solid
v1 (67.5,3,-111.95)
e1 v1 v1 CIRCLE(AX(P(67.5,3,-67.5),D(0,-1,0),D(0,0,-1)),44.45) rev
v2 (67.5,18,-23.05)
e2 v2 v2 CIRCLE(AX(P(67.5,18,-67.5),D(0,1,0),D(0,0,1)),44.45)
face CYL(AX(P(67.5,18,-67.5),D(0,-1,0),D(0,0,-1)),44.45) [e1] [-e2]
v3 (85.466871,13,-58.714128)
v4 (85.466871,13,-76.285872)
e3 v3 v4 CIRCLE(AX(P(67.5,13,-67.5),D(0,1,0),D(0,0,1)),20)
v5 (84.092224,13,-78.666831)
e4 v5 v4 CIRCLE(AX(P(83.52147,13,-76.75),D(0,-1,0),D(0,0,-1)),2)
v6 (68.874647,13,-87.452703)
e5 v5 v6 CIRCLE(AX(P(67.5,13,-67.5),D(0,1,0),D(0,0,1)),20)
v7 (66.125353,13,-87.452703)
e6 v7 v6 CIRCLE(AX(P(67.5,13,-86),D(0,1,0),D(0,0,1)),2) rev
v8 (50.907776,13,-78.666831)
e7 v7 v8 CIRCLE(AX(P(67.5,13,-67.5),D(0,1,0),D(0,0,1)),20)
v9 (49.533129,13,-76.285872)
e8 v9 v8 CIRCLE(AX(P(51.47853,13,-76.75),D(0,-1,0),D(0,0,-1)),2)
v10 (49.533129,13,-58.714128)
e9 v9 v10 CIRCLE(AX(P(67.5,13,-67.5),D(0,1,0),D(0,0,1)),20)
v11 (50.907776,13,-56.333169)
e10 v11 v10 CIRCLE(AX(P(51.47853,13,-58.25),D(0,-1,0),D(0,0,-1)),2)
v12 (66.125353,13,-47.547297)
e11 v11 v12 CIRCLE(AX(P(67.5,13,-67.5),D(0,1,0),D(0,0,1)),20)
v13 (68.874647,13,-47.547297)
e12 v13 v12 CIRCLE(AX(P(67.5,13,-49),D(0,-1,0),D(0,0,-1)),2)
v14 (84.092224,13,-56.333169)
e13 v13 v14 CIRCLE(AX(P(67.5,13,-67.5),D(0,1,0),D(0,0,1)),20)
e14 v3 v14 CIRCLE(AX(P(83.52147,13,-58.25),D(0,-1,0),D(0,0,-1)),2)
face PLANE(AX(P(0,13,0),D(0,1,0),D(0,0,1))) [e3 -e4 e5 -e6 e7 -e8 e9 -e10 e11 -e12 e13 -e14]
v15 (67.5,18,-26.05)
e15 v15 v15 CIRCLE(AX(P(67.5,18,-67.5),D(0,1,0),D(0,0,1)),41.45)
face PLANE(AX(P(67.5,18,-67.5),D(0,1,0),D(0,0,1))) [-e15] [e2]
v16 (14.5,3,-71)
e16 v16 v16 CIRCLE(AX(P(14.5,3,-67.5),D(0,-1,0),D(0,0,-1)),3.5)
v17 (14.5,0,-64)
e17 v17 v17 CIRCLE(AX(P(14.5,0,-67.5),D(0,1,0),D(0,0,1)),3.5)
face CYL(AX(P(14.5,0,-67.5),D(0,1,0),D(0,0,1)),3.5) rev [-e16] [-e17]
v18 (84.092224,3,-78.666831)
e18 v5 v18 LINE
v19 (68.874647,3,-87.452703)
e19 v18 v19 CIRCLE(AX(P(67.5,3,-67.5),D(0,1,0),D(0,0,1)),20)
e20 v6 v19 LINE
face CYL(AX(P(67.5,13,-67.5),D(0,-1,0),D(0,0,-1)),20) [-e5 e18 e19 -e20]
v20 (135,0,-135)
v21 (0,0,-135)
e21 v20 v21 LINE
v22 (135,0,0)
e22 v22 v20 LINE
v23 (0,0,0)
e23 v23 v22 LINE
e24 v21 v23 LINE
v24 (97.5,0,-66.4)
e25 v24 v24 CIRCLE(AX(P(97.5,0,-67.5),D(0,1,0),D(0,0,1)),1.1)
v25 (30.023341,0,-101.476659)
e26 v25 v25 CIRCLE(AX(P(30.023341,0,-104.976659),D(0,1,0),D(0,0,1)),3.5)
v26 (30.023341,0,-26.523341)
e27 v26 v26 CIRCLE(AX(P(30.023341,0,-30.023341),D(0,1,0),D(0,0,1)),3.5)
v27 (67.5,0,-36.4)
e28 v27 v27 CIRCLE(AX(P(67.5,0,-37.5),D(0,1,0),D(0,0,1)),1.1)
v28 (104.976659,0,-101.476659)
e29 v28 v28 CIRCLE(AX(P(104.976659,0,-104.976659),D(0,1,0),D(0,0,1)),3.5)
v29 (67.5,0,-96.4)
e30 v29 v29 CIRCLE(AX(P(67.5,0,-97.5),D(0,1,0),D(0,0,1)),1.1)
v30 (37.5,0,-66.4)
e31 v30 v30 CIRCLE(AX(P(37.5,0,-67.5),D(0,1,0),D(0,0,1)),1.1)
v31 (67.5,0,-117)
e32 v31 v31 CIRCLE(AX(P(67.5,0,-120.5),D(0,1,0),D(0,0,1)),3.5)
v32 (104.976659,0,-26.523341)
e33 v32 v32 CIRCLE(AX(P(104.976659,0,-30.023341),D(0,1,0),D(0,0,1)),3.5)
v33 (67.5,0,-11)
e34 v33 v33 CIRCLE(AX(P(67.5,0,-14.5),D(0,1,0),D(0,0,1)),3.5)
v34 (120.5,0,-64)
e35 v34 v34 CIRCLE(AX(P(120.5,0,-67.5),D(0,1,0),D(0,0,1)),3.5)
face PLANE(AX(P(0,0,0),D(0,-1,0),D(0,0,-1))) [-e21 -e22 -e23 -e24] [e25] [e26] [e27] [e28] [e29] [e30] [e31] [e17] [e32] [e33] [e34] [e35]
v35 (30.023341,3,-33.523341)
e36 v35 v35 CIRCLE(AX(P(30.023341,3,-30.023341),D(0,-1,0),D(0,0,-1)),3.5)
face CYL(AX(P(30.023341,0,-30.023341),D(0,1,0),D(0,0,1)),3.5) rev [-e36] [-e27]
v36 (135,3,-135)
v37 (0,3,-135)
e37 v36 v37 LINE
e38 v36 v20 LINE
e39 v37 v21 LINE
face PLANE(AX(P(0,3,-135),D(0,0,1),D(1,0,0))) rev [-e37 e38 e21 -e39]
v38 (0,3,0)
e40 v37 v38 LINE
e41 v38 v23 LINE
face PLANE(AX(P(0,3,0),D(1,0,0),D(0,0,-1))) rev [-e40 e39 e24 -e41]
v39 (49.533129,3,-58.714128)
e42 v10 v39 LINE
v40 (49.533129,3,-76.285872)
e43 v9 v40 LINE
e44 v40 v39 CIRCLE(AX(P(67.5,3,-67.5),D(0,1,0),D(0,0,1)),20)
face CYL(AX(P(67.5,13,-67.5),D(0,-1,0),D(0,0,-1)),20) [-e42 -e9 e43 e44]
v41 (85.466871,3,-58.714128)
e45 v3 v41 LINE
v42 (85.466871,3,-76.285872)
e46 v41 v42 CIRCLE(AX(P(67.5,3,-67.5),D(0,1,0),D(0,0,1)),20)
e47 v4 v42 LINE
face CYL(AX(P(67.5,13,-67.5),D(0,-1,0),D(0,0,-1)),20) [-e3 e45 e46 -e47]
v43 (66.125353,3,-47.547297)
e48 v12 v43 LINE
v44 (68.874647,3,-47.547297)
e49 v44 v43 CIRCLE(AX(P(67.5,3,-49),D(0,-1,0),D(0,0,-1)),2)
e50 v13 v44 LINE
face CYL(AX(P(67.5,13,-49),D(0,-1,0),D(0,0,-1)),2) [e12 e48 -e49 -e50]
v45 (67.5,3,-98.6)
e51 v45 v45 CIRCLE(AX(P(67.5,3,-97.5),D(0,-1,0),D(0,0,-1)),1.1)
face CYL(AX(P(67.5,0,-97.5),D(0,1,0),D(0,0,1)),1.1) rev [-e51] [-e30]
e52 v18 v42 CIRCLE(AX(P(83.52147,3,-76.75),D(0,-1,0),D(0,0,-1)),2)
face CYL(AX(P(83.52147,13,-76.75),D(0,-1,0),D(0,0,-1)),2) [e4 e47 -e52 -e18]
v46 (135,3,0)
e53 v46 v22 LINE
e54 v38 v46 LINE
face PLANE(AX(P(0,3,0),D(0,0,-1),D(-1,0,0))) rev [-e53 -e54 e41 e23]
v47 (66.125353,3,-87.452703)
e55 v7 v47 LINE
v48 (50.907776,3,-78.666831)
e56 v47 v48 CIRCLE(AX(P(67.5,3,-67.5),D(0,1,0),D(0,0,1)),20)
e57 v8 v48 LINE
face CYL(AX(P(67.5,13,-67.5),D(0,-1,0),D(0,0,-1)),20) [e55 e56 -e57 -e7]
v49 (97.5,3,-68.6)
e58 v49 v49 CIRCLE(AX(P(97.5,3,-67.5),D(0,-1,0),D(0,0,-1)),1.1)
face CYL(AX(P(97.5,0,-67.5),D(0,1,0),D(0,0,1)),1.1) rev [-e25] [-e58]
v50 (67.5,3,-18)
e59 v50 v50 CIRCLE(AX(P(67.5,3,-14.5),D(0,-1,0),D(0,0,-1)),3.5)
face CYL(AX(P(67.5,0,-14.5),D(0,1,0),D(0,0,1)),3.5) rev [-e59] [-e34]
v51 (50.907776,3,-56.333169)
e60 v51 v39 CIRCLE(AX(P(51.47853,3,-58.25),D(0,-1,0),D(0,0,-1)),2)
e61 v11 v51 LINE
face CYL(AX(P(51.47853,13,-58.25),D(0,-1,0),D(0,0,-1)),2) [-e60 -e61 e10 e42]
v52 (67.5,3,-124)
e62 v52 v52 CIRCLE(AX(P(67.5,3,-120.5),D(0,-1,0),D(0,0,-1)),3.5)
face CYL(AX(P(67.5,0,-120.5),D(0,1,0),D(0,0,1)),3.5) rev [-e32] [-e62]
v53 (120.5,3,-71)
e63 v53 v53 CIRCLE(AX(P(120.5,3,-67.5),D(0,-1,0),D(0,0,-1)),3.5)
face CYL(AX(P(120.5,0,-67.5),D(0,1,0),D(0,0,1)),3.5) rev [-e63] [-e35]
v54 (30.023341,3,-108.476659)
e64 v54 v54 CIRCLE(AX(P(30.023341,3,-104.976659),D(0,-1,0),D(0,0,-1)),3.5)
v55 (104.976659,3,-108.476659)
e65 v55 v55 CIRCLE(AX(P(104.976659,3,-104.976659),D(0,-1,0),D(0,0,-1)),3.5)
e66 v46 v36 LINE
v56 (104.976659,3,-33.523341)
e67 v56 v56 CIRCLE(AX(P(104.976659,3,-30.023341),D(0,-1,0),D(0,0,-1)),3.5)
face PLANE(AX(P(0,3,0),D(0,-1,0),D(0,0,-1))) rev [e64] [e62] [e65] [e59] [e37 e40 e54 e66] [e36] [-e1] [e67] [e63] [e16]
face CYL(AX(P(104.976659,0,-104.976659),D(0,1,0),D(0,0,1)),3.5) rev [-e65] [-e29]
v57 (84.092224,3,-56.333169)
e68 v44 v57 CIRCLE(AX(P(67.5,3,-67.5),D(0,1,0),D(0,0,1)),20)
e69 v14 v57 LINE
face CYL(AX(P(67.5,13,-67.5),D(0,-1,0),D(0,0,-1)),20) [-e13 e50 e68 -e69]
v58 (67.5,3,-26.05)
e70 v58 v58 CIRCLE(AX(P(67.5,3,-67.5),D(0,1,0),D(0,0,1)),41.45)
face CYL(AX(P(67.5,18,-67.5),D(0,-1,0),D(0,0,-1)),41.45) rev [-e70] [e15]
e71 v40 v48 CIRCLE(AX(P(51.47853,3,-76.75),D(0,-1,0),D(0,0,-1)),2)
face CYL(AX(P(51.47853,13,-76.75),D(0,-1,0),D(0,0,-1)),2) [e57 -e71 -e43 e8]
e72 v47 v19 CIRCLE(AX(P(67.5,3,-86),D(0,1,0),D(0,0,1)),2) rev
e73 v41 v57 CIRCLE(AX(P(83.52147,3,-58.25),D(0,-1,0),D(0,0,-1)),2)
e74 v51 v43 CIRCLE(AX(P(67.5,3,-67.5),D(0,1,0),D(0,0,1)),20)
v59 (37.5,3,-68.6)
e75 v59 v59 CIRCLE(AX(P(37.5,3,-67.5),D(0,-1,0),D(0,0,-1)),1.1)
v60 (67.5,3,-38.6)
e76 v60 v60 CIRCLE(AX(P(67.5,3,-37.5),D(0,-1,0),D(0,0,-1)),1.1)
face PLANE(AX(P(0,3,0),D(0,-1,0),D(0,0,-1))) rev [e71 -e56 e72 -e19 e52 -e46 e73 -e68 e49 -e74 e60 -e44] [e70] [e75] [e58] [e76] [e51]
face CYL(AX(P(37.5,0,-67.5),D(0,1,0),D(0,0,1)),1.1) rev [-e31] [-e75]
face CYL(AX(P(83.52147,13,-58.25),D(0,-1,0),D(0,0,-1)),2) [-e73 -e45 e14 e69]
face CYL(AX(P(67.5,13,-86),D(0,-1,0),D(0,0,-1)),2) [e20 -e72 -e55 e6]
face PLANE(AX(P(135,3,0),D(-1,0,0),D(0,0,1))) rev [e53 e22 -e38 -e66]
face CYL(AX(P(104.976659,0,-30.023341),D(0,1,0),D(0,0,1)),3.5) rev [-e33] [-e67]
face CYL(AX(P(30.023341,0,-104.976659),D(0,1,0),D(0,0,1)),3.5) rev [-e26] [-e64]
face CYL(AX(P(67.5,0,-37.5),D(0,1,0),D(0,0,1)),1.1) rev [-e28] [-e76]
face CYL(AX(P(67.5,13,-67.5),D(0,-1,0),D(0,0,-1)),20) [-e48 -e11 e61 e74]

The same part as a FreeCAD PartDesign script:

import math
import FreeCAD as App
import Part
import Sketcher

V = App.Vector

doc = App.newDocument("Part")
body = doc.addObject("PartDesign::Body", "Body")

# Sketch on XZ plane
sketch1 = doc.addObject("Sketcher::SketchObject", "Sketch")
body.addObject(sketch1)
sketch1.AttachmentSupport = (doc.XZ_Plane, [""])
sketch1.MapMode = "FlatFace"
sketch1.addGeometry([
    Part.LineSegment(V(0, -135, 0), V(0, 0, 0)),
    Part.LineSegment(V(0, 0, 0), V(135, 0, 0)),
    Part.LineSegment(V(135, 0, 0), V(135, -135, 0)),
    Part.LineSegment(V(135, -135, 0), V(0, -135, 0)),
], False)
sketch1.addConstraint([
    Sketcher.Constraint("Coincident", 0, 2, 1, 1),
    Sketcher.Constraint("Coincident", 1, 2, 2, 1),
    Sketcher.Constraint("Coincident", 2, 2, 3, 1),
    Sketcher.Constraint("Coincident", 3, 2, 0, 1),
    Sketcher.Constraint("Vertical", 0),
    Sketcher.Constraint("Horizontal", 1),
    Sketcher.Constraint("Vertical", 2),
    Sketcher.Constraint("Horizontal", 3),
    Sketcher.Constraint("Coincident", 0, 2, -1, 1),
    Sketcher.Constraint("Equal", 3, 0),
    Sketcher.Constraint("DistanceX", 1, 1, 1, 2, 135.0),
])
pad1 = doc.addObject("PartDesign::Pad", "Pad")
body.addObject(pad1)
pad1.Profile = sketch1
pad1.Length = 3
pad1.Reversed = True

# Sketch on XZ plane
sketch2 = doc.addObject("Sketcher::SketchObject", "Sketch001")
body.addObject(sketch2)
sketch2.AttachmentSupport = (doc.XZ_Plane, [""])
sketch2.MapMode = "FlatFace"
sketch2.AttachmentOffset = App.Placement(V(0, 0, -3), App.Rotation())
sketch2.addGeometry([
    Part.ArcOfCircle(Part.Circle(V(67.5, -67.5, 0), V(0, 0, 1), 20), math.radians(153.941181), math.radians(206.058819)),  # 0
    Part.ArcOfCircle(Part.Circle(V(51.47853, -58.25, 0), V(0, 0, 1), 2), math.radians(106.581381), math.radians(193.418619)),  # 1
    Part.ArcOfCircle(Part.Circle(V(67.5, -67.5, 0), V(0, 0, 1), 20), math.radians(135), math.radians(146.058819)),  # 2
    Part.ArcOfCircle(Part.Circle(V(67.5, -67.5, 0), V(0, 0, 1), 20), math.radians(93.941181), math.radians(135)),  # 3
    Part.ArcOfCircle(Part.Circle(V(67.5, -49, 0), V(0, 0, 1), 2), math.radians(46.581381), math.radians(133.418619)),  # 4
    Part.ArcOfCircle(Part.Circle(V(67.5, -67.5, 0), V(0, 0, 1), 20), math.radians(33.941181), math.radians(86.058819)),  # 5
    Part.ArcOfCircle(Part.Circle(V(83.52147, -58.25, 0), V(0, 0, 1), 2), math.radians(-13.418619), math.radians(73.418619)),  # 6
    Part.ArcOfCircle(Part.Circle(V(67.5, -67.5, 0), V(0, 0, 1), 20), math.radians(0), math.radians(26.058819)),  # 7
    Part.ArcOfCircle(Part.Circle(V(67.5, -67.5, 0), V(0, 0, 1), 20), math.radians(-26.058819), math.radians(0)),  # 8
    Part.ArcOfCircle(Part.Circle(V(83.52147, -76.75, 0), V(0, 0, 1), 2), math.radians(-73.418619), math.radians(13.418619)),  # 9
    Part.ArcOfCircle(Part.Circle(V(67.5, -67.5, 0), V(0, 0, 1), 20), math.radians(-45), math.radians(-33.941181)),  # 10
    Part.ArcOfCircle(Part.Circle(V(67.5, -67.5, 0), V(0, 0, 1), 20), math.radians(-86.058819), math.radians(-45)),  # 11
    Part.ArcOfCircle(Part.Circle(V(67.5, -86, 0), V(0, 0, 1), 2), math.radians(-133.418619), math.radians(-46.581381)),  # 12
    Part.ArcOfCircle(Part.Circle(V(67.5, -67.5, 0), V(0, 0, 1), 20), math.radians(-146.058819), math.radians(-93.941181)),  # 13
    Part.ArcOfCircle(Part.Circle(V(51.47853, -76.75, 0), V(0, 0, 1), 2), math.radians(166.581381), math.radians(253.418619)),  # 14
], False)
sketch2.addConstraint([
    Sketcher.Constraint("Coincident", 0, 1, 1, 2),
    Sketcher.Constraint("Coincident", 1, 1, 2, 2),
    Sketcher.Constraint("Tangent", 2, 1, 3, 2),
    Sketcher.Constraint("Coincident", 3, 1, 4, 2),
    Sketcher.Constraint("Coincident", 4, 1, 5, 2),
    Sketcher.Constraint("Coincident", 5, 1, 6, 2),
    Sketcher.Constraint("Coincident", 6, 1, 7, 2),
    Sketcher.Constraint("Tangent", 7, 1, 8, 2),
    Sketcher.Constraint("Coincident", 8, 1, 9, 2),
    Sketcher.Constraint("Coincident", 9, 1, 10, 2),
    Sketcher.Constraint("Tangent", 10, 1, 11, 2),
    Sketcher.Constraint("Coincident", 11, 1, 12, 2),
    Sketcher.Constraint("Coincident", 12, 1, 13, 2),
    Sketcher.Constraint("Coincident", 13, 1, 14, 2),
    Sketcher.Constraint("Coincident", 14, 1, 0, 2),
    Sketcher.Constraint("Coincident", 2, 3, 0, 3),
    Sketcher.Constraint("Coincident", 5, 3, 0, 3),
    Sketcher.Constraint("Coincident", 7, 3, 0, 3),
    Sketcher.Constraint("Coincident", 10, 3, 0, 3),
    Sketcher.Constraint("Coincident", 13, 3, 0, 3),
    Sketcher.Constraint("Equal", 0, 2),
    Sketcher.Constraint("Equal", 2, 3),
    Sketcher.Constraint("Equal", 1, 4),
    Sketcher.Constraint("Equal", 3, 5),
    Sketcher.Constraint("Equal", 4, 6),
    Sketcher.Constraint("Equal", 5, 7),
    Sketcher.Constraint("Equal", 7, 8),
    Sketcher.Constraint("Equal", 6, 9),
    Sketcher.Constraint("Equal", 8, 10),
    Sketcher.Constraint("Equal", 10, 11),
    Sketcher.Constraint("Equal", 9, 12),
    Sketcher.Constraint("Equal", 11, 13),
    Sketcher.Constraint("Equal", 12, 14),
    Sketcher.Constraint("Horizontal", 1, 3, 6, 3),
    Sketcher.Constraint("Horizontal", 9, 3, 14, 3),
    Sketcher.Constraint("Horizontal", 3, 1, 4, 1),
    Sketcher.Constraint("Horizontal", 1, 1, 5, 1),
    Sketcher.Constraint("Horizontal", 13, 3, 7, 1),
    Sketcher.Constraint("Horizontal", 11, 1, 12, 1),
    Sketcher.Constraint("Horizontal", 9, 1, 13, 1),
    Sketcher.Constraint("Vertical", 6, 3, 9, 3),
    Sketcher.Constraint("Vertical", 6, 1, 8, 1),
    Sketcher.Constraint("Vertical", 4, 1, 11, 1),
    Sketcher.Constraint("Radius", 0, 20.0),
    Sketcher.Constraint("Radius", 1, 2.0),
    Sketcher.Constraint("DistanceY", 4, 3, -1, 1, 49.0),
    Sketcher.Constraint("DistanceY", 12, 3, -1, 1, 86.0),
    Sketcher.Constraint("DistanceX", -1, 1, 0, 3, 67.5),
    Sketcher.Constraint("DistanceY", 9, 3, 6, 3, 18.5),
    Sketcher.Constraint("DistanceX", 0, 1, 1, 3, 1.945401),
    Sketcher.Constraint("DistanceX", 1, 1, 2, 1, 2.450088),
    Sketcher.Constraint("DistanceX", 10, 1, 9, 1, 2.450088),
])
pad2 = doc.addObject("PartDesign::Pad", "Pad001")
body.addObject(pad2)
pad2.Profile = sketch2
pad2.Length = 10
pad2.Reversed = True

# Sketch on XZ plane
sketch3 = doc.addObject("Sketcher::SketchObject", "Sketch002")
body.addObject(sketch3)
sketch3.AttachmentSupport = (doc.XZ_Plane, [""])
sketch3.MapMode = "FlatFace"
sketch3.AttachmentOffset = App.Placement(V(0, 0, -3), App.Rotation())
sketch3.addGeometry([
    Part.Circle(V(67.5, -67.5, 0), V(0, 0, 1), 44.45),
    Part.Circle(V(67.5, -67.5, 0), V(0, 0, 1), 41.45),
], False)
sketch3.addConstraint([
    Sketcher.Constraint("Coincident", 1, 3, 0, 3),
    Sketcher.Constraint("Diameter", 0, 88.9),
    Sketcher.Constraint("Diameter", 1, 82.9),
    Sketcher.Constraint("DistanceX", -1, 1, 0, 3, 67.5),
    Sketcher.Constraint("DistanceY", 0, 3, -1, 1, 67.5),
])
pad3 = doc.addObject("PartDesign::Pad", "Pad002")
body.addObject(pad3)
pad3.Profile = sketch3
pad3.Length = 15
pad3.Reversed = True

# Sketch on XZ plane
sketch4 = doc.addObject("Sketcher::SketchObject", "Sketch003")
body.addObject(sketch4)
sketch4.AttachmentSupport = (doc.XZ_Plane, [""])
sketch4.MapMode = "FlatFace"
sketch4.AttachmentOffset = App.Placement(V(0, 0, -3), App.Rotation())
sketch4.addGeometry([
    Part.Circle(V(67.5, -97.5, 0), V(0, 0, 1), 1.1),
    Part.Circle(V(97.5, -67.5, 0), V(0, 0, 1), 1.1),
    Part.Circle(V(67.5, -37.5, 0), V(0, 0, 1), 1.1),
    Part.Circle(V(37.5, -67.5, 0), V(0, 0, 1), 1.1),
], False)
sketch4.addConstraint([
    Sketcher.Constraint("Equal", 0, 1),
    Sketcher.Constraint("Equal", 1, 2),
    Sketcher.Constraint("Equal", 2, 3),
    Sketcher.Constraint("Horizontal", 1, 3, 3, 3),
    Sketcher.Constraint("Vertical", 0, 3, 2, 3),
    Sketcher.Constraint("Diameter", 0, 2.2),
    Sketcher.Constraint("DistanceX", 0, 3, 1, 3, 30.0),
    Sketcher.Constraint("DistanceY", 0, 3, 1, 3, 30.0),
    Sketcher.Constraint("DistanceY", 1, 3, 2, 3, 30.0),
    Sketcher.Constraint("DistanceX", 3, 3, 0, 3, 30.0),
    Sketcher.Constraint("DistanceX", -1, 1, 0, 3, 67.5),
    Sketcher.Constraint("DistanceY", 0, 3, -1, 1, 97.5),
])
pocket1 = doc.addObject("PartDesign::Pocket", "Pocket")
body.addObject(pocket1)
pocket1.Profile = sketch4
pocket1.Type = "ThroughAll"
pocket1.Midplane = True

# Sketch on XZ plane
sketch5 = doc.addObject("Sketcher::SketchObject", "Sketch004")
body.addObject(sketch5)
sketch5.AttachmentSupport = (doc.XZ_Plane, [""])
sketch5.MapMode = "FlatFace"
sketch5.AttachmentOffset = App.Placement(V(0, 0, -3), App.Rotation())
sketch5.addGeometry([
    Part.Circle(V(67.5, -120.5, 0), V(0, 0, 1), 3.5),  # 0
    Part.Circle(V(104.976659, -104.976659, 0), V(0, 0, 1), 3.5),  # 1
    Part.Circle(V(120.5, -67.5, 0), V(0, 0, 1), 3.5),  # 2
    Part.Circle(V(104.976659, -30.023341, 0), V(0, 0, 1), 3.5),  # 3
    Part.Circle(V(67.5, -14.5, 0), V(0, 0, 1), 3.5),  # 4
    Part.Circle(V(30.023341, -30.023341, 0), V(0, 0, 1), 3.5),  # 5
    Part.Circle(V(14.5, -67.5, 0), V(0, 0, 1), 3.5),  # 6
    Part.Circle(V(30.023341, -104.976659, 0), V(0, 0, 1), 3.5),  # 7
], False)
sketch5.addConstraint([
    Sketcher.Constraint("Equal", 0, 1),
    Sketcher.Constraint("Equal", 1, 2),
    Sketcher.Constraint("Equal", 2, 3),
    Sketcher.Constraint("Equal", 3, 4),
    Sketcher.Constraint("Equal", 4, 5),
    Sketcher.Constraint("Equal", 5, 6),
    Sketcher.Constraint("Equal", 6, 7),
    Sketcher.Constraint("Horizontal", 3, 3, 5, 3),
    Sketcher.Constraint("Horizontal", 2, 3, 6, 3),
    Sketcher.Constraint("Horizontal", 1, 3, 7, 3),
    Sketcher.Constraint("Vertical", 1, 3, 3, 3),
    Sketcher.Constraint("Vertical", 0, 3, 4, 3),
    Sketcher.Constraint("Vertical", 5, 3, 7, 3),
    Sketcher.Constraint("Diameter", 0, 7.0),
    Sketcher.Constraint("DistanceX", 0, 3, 2, 3, 53.0),
    Sketcher.Constraint("DistanceY", 0, 3, 2, 3, 53.0),
    Sketcher.Constraint("DistanceY", 2, 3, 4, 3, 53.0),
    Sketcher.Constraint("DistanceX", 6, 3, 0, 3, 53.0),
    Sketcher.Constraint("DistanceX", -1, 1, 0, 3, 67.5),
    Sketcher.Constraint("DistanceY", 0, 3, -1, 1, 120.5),
    Sketcher.Constraint("DistanceX", -1, 1, 1, 3, 104.976659),
    Sketcher.Constraint("DistanceY", 1, 3, -1, 1, 104.976659),
    Sketcher.Constraint("DistanceY", 3, 3, -1, 1, 30.023341),
    Sketcher.Constraint("DistanceX", -1, 1, 5, 3, 30.023341),
])
pocket2 = doc.addObject("PartDesign::Pocket", "Pocket001")
body.addObject(pocket2)
pocket2.Profile = sketch5
pocket2.Type = "ThroughAll"
pocket2.Midplane = True

doc.recompute()
